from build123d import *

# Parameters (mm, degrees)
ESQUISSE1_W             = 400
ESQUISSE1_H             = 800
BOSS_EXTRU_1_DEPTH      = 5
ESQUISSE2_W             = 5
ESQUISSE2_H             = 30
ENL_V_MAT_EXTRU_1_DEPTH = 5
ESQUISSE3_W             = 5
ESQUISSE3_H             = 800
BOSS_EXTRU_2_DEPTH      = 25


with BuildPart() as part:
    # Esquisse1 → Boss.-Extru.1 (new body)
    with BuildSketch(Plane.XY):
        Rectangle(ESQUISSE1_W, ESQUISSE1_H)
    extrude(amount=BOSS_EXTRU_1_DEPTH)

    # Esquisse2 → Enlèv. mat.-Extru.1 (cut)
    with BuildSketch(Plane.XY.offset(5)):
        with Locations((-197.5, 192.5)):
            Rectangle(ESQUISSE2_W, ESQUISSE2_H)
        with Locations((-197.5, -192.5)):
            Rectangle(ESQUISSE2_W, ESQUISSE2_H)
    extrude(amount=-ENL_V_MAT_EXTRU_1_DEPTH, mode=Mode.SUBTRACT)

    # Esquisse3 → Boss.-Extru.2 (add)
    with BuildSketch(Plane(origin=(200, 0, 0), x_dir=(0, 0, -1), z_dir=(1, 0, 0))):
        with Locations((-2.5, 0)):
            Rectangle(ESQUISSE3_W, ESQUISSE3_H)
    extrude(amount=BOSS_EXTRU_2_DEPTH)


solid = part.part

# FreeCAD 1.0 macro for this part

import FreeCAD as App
import Part
import Sketcher
from FreeCAD import Vector
Q = App.Units.Quantity


def add_polygon(sketch, points):
    """Adds a closed chain of lines whose ends are joined by coincident constraints."""
    first, n = sketch.GeometryCount, len(points)
    for a, b in zip(points, points[1:] + points[:1]):
        sketch.addGeometry(Part.LineSegment(App.Vector(*a, 0), App.Vector(*b, 0)), False)
    for i in range(n):
        sketch.addConstraint(Sketcher.Constraint("Coincident", first + i, 2, first + (i + 1) % n, 1))

doc = App.newDocument("Part")
body = doc.addObject("PartDesign::Body", "Body")

# Sketch on XY plane
sketch1 = body.newObject("Sketcher::SketchObject", "Sketch")
sketch1.AttachmentSupport = (doc.getObject("XY_Plane"), [""])
sketch1.MapMode = "FlatFace"
add_polygon(sketch1, [(-200, 400), (-200, -400), (200, -400), (200, 400)])  # lines 0-3
sketch1.addConstraint([
    Sketcher.Constraint("Vertical", 0),
    Sketcher.Constraint("Horizontal", 1),
    Sketcher.Constraint("Vertical", 2),
    Sketcher.Constraint("Horizontal", 3),
    Sketcher.Constraint("Symmetric", 0, 2, 2, 2, -1, 1),
    Sketcher.Constraint("DistanceX", 1, 1, 1, 2, Q("400 mm")),
    Sketcher.Constraint("DistanceY", 0, 2, 0, 1, Q("800 mm")),
])
pad1 = body.newObject("PartDesign::Pad", "Pad")
pad1.Profile = sketch1
pad1.Length = 5

# Sketch on XY plane
sketch2 = body.newObject("Sketcher::SketchObject", "Sketch001")
sketch2.AttachmentSupport = (doc.getObject("XY_Plane"), [""])
sketch2.MapMode = "FlatFace"
sketch2.AttachmentOffset = App.Placement(Vector(0, 0, 5), App.Rotation())
add_polygon(sketch2, [(-200, 208), (-200, 178), (-195, 178), (-195, 208)])  # lines 0-3
add_polygon(sketch2, [(-200, -178), (-200, -208), (-195, -208), (-195, -178)])  # lines 4-7
sketch2.addConstraint([
    Sketcher.Constraint("Vertical", 0),
    Sketcher.Constraint("Horizontal", 1),
    Sketcher.Constraint("Vertical", 2),
    Sketcher.Constraint("Horizontal", 3),
    Sketcher.Constraint("Vertical", 4),
    Sketcher.Constraint("Horizontal", 5),
    Sketcher.Constraint("Vertical", 6),
    Sketcher.Constraint("Horizontal", 7),
    Sketcher.Constraint("Symmetric", 3, 2, 4, 2, -1),
    Sketcher.Constraint("Symmetric", 1, 2, 6, 2, -1),
    Sketcher.Constraint("DistanceX", 1, 1, 1, 2, Q("5 mm")),
    Sketcher.Constraint("DistanceY", 0, 2, 0, 1, Q("30 mm")),
    Sketcher.Constraint("DistanceX", 0, 2, -1, 1, Q("200 mm")),
    Sketcher.Constraint("DistanceY", 4, 2, 0, 2, Q("385 mm")),
])
pocket1 = body.newObject("PartDesign::Pocket", "Pocket")
pocket1.Profile = sketch2
pocket1.Length = 5

# Sketch on YZ plane
sketch3 = body.newObject("Sketcher::SketchObject", "Sketch002")
sketch3.AttachmentSupport = (doc.getObject("YZ_Plane"), [""])
sketch3.MapMode = "FlatFace"
sketch3.AttachmentOffset = App.Placement(Vector(0, 0, 200), App.Rotation())
add_polygon(sketch3, [(400, 5), (-400, 5), (-400, 0), (400, 0)])  # lines 0-3
sketch3.addConstraint([
    Sketcher.Constraint("Horizontal", 0),
    Sketcher.Constraint("Vertical", 1),
    Sketcher.Constraint("Horizontal", 2),
    Sketcher.Constraint("Vertical", 3),
    Sketcher.Constraint("Symmetric", 1, 2, 2, 2, -1, 1),
    Sketcher.Constraint("DistanceX", 0, 2, 0, 1, Q("800 mm")),
    Sketcher.Constraint("DistanceY", 1, 2, 1, 1, Q("5 mm")),
])
pad2 = body.newObject("PartDesign::Pad", "Pad001")
pad2.Profile = sketch3
pad2.Length = 25

doc.recompute()
